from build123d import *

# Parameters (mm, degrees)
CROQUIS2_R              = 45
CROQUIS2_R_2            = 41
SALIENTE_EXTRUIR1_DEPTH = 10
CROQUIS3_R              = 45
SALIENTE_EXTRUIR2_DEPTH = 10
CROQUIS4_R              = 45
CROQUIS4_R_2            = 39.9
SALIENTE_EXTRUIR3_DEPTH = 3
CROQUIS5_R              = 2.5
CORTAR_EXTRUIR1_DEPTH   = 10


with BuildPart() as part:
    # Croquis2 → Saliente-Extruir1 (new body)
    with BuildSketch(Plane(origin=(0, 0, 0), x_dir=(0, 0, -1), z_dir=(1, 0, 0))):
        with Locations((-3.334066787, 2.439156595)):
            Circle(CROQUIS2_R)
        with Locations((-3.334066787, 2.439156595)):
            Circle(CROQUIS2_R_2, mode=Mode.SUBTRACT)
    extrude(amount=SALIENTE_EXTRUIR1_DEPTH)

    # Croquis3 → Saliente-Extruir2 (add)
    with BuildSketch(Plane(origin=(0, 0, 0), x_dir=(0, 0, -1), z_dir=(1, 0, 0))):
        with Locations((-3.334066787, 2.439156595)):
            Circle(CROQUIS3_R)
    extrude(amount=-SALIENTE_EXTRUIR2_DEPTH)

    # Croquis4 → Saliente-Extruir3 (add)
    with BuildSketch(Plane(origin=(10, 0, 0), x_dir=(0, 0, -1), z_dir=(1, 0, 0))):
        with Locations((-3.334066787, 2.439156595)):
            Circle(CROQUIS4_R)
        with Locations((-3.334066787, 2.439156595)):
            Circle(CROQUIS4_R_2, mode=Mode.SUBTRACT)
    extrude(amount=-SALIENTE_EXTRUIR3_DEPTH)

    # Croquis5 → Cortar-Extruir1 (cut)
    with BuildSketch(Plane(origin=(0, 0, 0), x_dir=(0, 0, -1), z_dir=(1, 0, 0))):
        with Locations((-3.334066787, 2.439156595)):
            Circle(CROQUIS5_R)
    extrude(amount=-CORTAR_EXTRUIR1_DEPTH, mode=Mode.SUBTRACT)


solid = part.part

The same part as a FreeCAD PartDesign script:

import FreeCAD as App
import Part
import Sketcher

V = App.Vector
Q = App.Units.Quantity

doc = App.newDocument("Part")
body = doc.addObject("PartDesign::Body", "Body")

# Sketch on YZ plane
sketch1 = body.newObject("Sketcher::SketchObject", "Sketch")
sketch1.AttachmentSupport = (doc.getObject("YZ_Plane"), [""])
sketch1.MapMode = "FlatFace"
sketch1.addGeometry([
    Part.Circle(V(2.439157, 3.334067, 0), V(0, 0, 1), 45),
    Part.Circle(V(2.439157, 3.334067, 0), V(0, 0, 1), 41),
], False)
sketch1.addConstraint([
    Sketcher.Constraint("Coincident", 1, 3, 0, 3),
    Sketcher.Constraint("Diameter", 0, Q("90 mm")),
    Sketcher.Constraint("Diameter", 1, Q("82 mm")),
    Sketcher.Constraint("DistanceX", -1, 1, 0, 3, Q("2.439157 mm")),
    Sketcher.Constraint("DistanceY", -1, 1, 0, 3, Q("3.334067 mm")),
])
pad1 = body.newObject("PartDesign::Pad", "Pad")
pad1.Profile = sketch1
pad1.Length = 10

# Sketch on YZ plane
sketch2 = body.newObject("Sketcher::SketchObject", "Sketch001")
sketch2.AttachmentSupport = (doc.getObject("YZ_Plane"), [""])
sketch2.MapMode = "FlatFace"
sketch2.addGeometry(Part.Circle(V(2.439157, 3.334067, 0), V(0, 0, 1), 45), False)
sketch2.addConstraint([
    Sketcher.Constraint("Diameter", 0, Q("90 mm")),
    Sketcher.Constraint("DistanceX", -1, 1, 0, 3, Q("2.439157 mm")),
    Sketcher.Constraint("DistanceY", -1, 1, 0, 3, Q("3.334067 mm")),
])
pad2 = body.newObject("PartDesign::Pad", "Pad001")
pad2.Profile = sketch2
pad2.Length = 10
pad2.Reversed = True

# Sketch on YZ plane
sketch3 = body.newObject("Sketcher::SketchObject", "Sketch002")
sketch3.AttachmentSupport = (doc.getObject("YZ_Plane"), [""])
sketch3.MapMode = "FlatFace"
sketch3.AttachmentOffset = App.Placement(V(0, 0, 10), App.Rotation())
sketch3.addGeometry([
    Part.Circle(V(2.439157, 3.334067, 0), V(0, 0, 1), 45),
    Part.Circle(V(2.439157, 3.334067, 0), V(0, 0, 1), 39.9),
], False)
sketch3.addConstraint([
    Sketcher.Constraint("Coincident", 1, 3, 0, 3),
    Sketcher.Constraint("Diameter", 0, Q("90 mm")),
    Sketcher.Constraint("Diameter", 1, Q("79.8 mm")),
    Sketcher.Constraint("DistanceX", -1, 1, 0, 3, Q("2.439157 mm")),
    Sketcher.Constraint("DistanceY", -1, 1, 0, 3, Q("3.334067 mm")),
])
pad3 = body.newObject("PartDesign::Pad", "Pad002")
pad3.Profile = sketch3
pad3.Length = 3
pad3.Reversed = True

# Sketch on YZ plane
sketch4 = body.newObject("Sketcher::SketchObject", "Sketch003")
sketch4.AttachmentSupport = (doc.getObject("YZ_Plane"), [""])
sketch4.MapMode = "FlatFace"
sketch4.addGeometry(Part.Circle(V(2.439157, 3.334067, 0), V(0, 0, 1), 2.5), False)
sketch4.addConstraint([
    Sketcher.Constraint("Diameter", 0, Q("5 mm")),
    Sketcher.Constraint("DistanceX", -1, 1, 0, 3, Q("2.439157 mm")),
    Sketcher.Constraint("DistanceY", -1, 1, 0, 3, Q("3.334067 mm")),
])
pocket1 = body.newObject("PartDesign::Pocket", "Pocket")
pocket1.Profile = sketch4
pocket1.Length = 10

doc.recompute()
